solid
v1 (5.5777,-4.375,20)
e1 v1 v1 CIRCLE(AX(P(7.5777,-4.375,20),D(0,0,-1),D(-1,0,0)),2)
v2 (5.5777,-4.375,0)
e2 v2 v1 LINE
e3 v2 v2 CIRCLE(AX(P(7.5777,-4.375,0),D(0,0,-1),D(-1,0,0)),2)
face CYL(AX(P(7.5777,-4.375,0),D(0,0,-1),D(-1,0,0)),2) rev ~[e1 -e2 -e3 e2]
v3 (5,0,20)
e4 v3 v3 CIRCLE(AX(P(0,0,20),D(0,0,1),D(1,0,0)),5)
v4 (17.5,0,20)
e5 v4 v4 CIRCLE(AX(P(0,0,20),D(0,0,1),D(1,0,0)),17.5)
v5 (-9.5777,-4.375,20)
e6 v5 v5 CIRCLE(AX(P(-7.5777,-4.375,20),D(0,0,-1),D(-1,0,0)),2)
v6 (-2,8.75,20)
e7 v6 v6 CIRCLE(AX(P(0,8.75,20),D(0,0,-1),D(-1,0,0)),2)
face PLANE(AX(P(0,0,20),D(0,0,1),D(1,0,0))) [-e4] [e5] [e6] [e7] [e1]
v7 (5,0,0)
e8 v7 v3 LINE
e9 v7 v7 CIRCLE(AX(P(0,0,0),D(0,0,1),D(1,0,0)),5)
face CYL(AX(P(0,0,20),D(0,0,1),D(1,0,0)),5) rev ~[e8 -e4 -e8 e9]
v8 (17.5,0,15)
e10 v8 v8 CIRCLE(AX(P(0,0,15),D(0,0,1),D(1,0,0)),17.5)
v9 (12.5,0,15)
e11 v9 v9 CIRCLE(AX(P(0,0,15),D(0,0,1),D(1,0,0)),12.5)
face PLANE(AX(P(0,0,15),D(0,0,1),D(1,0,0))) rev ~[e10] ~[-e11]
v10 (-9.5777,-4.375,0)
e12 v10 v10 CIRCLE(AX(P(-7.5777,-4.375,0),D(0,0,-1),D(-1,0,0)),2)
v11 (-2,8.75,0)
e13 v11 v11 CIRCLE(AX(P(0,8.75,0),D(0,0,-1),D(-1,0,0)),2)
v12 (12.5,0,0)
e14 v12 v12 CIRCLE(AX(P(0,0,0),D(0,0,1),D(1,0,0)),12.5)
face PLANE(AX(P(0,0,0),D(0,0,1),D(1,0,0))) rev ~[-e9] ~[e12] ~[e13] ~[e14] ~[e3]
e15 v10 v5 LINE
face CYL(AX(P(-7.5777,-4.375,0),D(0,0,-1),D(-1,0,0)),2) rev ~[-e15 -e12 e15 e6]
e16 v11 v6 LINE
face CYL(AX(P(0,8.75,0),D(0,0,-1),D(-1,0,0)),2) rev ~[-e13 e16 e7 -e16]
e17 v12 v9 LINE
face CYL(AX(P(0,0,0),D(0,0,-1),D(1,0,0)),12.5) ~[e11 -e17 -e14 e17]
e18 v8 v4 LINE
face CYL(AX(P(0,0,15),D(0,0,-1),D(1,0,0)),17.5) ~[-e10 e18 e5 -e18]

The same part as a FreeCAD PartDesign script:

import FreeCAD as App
import Part
import Sketcher

V = App.Vector

doc = App.newDocument("Part")
body = doc.addObject("PartDesign::Body", "Body")

sketch1 = doc.addObject("Sketcher::SketchObject", "Sketch")
body.addObject(sketch1)
sketch1.AttachmentSupport = (doc.XY_Plane, [""])
sketch1.MapMode = "FlatFace"
sketch1.addGeometry(Part.Circle(V(0, 0, 0), V(0, 0, 1), 12.5), False)
sketch1.addGeometry(Part.Circle(V(0, 0, 0), V(0, 0, 1), 5), False)
sketch1.addConstraint(Sketcher.Constraint("Coincident", 0, 3, -1, 1))
sketch1.addConstraint(Sketcher.Constraint("Coincident", 1, 3, -1, 1))
sketch1.addConstraint(Sketcher.Constraint("Diameter", 0, 25.0))
sketch1.addConstraint(Sketcher.Constraint("Diameter", 1, 10.0))
pad1 = doc.addObject("PartDesign::Pad", "Pad")
body.addObject(pad1)
pad1.Profile = sketch1
pad1.Length = 15

sketch2 = doc.addObject("Sketcher::SketchObject", "Sketch001")
body.addObject(sketch2)
sketch2.AttachmentSupport = (doc.XY_Plane, [""])
sketch2.MapMode = "FlatFace"
sketch2.AttachmentOffset = App.Placement(V(0, 0, 15), App.Rotation())
sketch2.addGeometry(Part.Circle(V(0, 0, 0), V(0, 0, 1), 17.5), False)
sketch2.addConstraint(Sketcher.Constraint("Coincident", 0, 3, -1, 1))
sketch2.addConstraint(Sketcher.Constraint("Diameter", 0, 35.0))
pad2 = doc.addObject("PartDesign::Pad", "Pad001")
body.addObject(pad2)
pad2.Profile = sketch2
pad2.Length = 5

sketch3 = doc.addObject("Sketcher::SketchObject", "Sketch002")
body.addObject(sketch3)
sketch3.AttachmentSupport = (doc.XY_Plane, [""])
sketch3.MapMode = "FlatFace"
sketch3.AttachmentOffset = App.Placement(V(0, 0, 20), App.Rotation())
sketch3.addGeometry(Part.Circle(V(0, 0, 0), V(0, 0, 1), 5), False)
sketch3.addConstraint(Sketcher.Constraint("Coincident", 0, 3, -1, 1))
sketch3.addConstraint(Sketcher.Constraint("Diameter", 0, 10.0))
pocket1 = doc.addObject("PartDesign::Pocket", "Pocket")
body.addObject(pocket1)
pocket1.Profile = sketch3
pocket1.Type = "ThroughAll"

sketch4 = doc.addObject("Sketcher::SketchObject", "Sketch003")
body.addObject(sketch4)
sketch4.AttachmentSupport = (doc.XY_Plane, [""])
sketch4.MapMode = "FlatFace"
sketch4.addGeometry(Part.Circle(V(0, 8.75, 0), V(0, 0, 1), 2), False)
sketch4.addGeometry(Part.Circle(V(7.5777, -4.375, 0), V(0, 0, 1), 2), False)
sketch4.addGeometry(Part.Circle(V(-7.5777, -4.375, 0), V(0, 0, 1), 2), False)
sketch4.addConstraint(Sketcher.Constraint("Equal", 0, 1))
sketch4.addConstraint(Sketcher.Constraint("Equal", 1, 2))
sketch4.addConstraint(Sketcher.Constraint("Symmetric", 1, 3, 2, 3, -2))
sketch4.addConstraint(Sketcher.Constraint("PointOnObject", 0, 3, -2))
sketch4.addConstraint(Sketcher.Constraint("Diameter", 0, 4.0))
sketch4.addConstraint(Sketcher.Constraint("DistanceY", -1, 1, 0, 3, 8.75))
sketch4.addConstraint(Sketcher.Constraint("DistanceY", 1, 3, -1, 1, 4.375))
sketch4.addConstraint(Sketcher.Constraint("DistanceX", -1, 1, 1, 3, 7.5777))
pocket2 = doc.addObject("PartDesign::Pocket", "Pocket001")
body.addObject(pocket2)
pocket2.Profile = sketch4
pocket2.Type = "ThroughAll"
pocket2.Reversed = True

doc.recompute()
